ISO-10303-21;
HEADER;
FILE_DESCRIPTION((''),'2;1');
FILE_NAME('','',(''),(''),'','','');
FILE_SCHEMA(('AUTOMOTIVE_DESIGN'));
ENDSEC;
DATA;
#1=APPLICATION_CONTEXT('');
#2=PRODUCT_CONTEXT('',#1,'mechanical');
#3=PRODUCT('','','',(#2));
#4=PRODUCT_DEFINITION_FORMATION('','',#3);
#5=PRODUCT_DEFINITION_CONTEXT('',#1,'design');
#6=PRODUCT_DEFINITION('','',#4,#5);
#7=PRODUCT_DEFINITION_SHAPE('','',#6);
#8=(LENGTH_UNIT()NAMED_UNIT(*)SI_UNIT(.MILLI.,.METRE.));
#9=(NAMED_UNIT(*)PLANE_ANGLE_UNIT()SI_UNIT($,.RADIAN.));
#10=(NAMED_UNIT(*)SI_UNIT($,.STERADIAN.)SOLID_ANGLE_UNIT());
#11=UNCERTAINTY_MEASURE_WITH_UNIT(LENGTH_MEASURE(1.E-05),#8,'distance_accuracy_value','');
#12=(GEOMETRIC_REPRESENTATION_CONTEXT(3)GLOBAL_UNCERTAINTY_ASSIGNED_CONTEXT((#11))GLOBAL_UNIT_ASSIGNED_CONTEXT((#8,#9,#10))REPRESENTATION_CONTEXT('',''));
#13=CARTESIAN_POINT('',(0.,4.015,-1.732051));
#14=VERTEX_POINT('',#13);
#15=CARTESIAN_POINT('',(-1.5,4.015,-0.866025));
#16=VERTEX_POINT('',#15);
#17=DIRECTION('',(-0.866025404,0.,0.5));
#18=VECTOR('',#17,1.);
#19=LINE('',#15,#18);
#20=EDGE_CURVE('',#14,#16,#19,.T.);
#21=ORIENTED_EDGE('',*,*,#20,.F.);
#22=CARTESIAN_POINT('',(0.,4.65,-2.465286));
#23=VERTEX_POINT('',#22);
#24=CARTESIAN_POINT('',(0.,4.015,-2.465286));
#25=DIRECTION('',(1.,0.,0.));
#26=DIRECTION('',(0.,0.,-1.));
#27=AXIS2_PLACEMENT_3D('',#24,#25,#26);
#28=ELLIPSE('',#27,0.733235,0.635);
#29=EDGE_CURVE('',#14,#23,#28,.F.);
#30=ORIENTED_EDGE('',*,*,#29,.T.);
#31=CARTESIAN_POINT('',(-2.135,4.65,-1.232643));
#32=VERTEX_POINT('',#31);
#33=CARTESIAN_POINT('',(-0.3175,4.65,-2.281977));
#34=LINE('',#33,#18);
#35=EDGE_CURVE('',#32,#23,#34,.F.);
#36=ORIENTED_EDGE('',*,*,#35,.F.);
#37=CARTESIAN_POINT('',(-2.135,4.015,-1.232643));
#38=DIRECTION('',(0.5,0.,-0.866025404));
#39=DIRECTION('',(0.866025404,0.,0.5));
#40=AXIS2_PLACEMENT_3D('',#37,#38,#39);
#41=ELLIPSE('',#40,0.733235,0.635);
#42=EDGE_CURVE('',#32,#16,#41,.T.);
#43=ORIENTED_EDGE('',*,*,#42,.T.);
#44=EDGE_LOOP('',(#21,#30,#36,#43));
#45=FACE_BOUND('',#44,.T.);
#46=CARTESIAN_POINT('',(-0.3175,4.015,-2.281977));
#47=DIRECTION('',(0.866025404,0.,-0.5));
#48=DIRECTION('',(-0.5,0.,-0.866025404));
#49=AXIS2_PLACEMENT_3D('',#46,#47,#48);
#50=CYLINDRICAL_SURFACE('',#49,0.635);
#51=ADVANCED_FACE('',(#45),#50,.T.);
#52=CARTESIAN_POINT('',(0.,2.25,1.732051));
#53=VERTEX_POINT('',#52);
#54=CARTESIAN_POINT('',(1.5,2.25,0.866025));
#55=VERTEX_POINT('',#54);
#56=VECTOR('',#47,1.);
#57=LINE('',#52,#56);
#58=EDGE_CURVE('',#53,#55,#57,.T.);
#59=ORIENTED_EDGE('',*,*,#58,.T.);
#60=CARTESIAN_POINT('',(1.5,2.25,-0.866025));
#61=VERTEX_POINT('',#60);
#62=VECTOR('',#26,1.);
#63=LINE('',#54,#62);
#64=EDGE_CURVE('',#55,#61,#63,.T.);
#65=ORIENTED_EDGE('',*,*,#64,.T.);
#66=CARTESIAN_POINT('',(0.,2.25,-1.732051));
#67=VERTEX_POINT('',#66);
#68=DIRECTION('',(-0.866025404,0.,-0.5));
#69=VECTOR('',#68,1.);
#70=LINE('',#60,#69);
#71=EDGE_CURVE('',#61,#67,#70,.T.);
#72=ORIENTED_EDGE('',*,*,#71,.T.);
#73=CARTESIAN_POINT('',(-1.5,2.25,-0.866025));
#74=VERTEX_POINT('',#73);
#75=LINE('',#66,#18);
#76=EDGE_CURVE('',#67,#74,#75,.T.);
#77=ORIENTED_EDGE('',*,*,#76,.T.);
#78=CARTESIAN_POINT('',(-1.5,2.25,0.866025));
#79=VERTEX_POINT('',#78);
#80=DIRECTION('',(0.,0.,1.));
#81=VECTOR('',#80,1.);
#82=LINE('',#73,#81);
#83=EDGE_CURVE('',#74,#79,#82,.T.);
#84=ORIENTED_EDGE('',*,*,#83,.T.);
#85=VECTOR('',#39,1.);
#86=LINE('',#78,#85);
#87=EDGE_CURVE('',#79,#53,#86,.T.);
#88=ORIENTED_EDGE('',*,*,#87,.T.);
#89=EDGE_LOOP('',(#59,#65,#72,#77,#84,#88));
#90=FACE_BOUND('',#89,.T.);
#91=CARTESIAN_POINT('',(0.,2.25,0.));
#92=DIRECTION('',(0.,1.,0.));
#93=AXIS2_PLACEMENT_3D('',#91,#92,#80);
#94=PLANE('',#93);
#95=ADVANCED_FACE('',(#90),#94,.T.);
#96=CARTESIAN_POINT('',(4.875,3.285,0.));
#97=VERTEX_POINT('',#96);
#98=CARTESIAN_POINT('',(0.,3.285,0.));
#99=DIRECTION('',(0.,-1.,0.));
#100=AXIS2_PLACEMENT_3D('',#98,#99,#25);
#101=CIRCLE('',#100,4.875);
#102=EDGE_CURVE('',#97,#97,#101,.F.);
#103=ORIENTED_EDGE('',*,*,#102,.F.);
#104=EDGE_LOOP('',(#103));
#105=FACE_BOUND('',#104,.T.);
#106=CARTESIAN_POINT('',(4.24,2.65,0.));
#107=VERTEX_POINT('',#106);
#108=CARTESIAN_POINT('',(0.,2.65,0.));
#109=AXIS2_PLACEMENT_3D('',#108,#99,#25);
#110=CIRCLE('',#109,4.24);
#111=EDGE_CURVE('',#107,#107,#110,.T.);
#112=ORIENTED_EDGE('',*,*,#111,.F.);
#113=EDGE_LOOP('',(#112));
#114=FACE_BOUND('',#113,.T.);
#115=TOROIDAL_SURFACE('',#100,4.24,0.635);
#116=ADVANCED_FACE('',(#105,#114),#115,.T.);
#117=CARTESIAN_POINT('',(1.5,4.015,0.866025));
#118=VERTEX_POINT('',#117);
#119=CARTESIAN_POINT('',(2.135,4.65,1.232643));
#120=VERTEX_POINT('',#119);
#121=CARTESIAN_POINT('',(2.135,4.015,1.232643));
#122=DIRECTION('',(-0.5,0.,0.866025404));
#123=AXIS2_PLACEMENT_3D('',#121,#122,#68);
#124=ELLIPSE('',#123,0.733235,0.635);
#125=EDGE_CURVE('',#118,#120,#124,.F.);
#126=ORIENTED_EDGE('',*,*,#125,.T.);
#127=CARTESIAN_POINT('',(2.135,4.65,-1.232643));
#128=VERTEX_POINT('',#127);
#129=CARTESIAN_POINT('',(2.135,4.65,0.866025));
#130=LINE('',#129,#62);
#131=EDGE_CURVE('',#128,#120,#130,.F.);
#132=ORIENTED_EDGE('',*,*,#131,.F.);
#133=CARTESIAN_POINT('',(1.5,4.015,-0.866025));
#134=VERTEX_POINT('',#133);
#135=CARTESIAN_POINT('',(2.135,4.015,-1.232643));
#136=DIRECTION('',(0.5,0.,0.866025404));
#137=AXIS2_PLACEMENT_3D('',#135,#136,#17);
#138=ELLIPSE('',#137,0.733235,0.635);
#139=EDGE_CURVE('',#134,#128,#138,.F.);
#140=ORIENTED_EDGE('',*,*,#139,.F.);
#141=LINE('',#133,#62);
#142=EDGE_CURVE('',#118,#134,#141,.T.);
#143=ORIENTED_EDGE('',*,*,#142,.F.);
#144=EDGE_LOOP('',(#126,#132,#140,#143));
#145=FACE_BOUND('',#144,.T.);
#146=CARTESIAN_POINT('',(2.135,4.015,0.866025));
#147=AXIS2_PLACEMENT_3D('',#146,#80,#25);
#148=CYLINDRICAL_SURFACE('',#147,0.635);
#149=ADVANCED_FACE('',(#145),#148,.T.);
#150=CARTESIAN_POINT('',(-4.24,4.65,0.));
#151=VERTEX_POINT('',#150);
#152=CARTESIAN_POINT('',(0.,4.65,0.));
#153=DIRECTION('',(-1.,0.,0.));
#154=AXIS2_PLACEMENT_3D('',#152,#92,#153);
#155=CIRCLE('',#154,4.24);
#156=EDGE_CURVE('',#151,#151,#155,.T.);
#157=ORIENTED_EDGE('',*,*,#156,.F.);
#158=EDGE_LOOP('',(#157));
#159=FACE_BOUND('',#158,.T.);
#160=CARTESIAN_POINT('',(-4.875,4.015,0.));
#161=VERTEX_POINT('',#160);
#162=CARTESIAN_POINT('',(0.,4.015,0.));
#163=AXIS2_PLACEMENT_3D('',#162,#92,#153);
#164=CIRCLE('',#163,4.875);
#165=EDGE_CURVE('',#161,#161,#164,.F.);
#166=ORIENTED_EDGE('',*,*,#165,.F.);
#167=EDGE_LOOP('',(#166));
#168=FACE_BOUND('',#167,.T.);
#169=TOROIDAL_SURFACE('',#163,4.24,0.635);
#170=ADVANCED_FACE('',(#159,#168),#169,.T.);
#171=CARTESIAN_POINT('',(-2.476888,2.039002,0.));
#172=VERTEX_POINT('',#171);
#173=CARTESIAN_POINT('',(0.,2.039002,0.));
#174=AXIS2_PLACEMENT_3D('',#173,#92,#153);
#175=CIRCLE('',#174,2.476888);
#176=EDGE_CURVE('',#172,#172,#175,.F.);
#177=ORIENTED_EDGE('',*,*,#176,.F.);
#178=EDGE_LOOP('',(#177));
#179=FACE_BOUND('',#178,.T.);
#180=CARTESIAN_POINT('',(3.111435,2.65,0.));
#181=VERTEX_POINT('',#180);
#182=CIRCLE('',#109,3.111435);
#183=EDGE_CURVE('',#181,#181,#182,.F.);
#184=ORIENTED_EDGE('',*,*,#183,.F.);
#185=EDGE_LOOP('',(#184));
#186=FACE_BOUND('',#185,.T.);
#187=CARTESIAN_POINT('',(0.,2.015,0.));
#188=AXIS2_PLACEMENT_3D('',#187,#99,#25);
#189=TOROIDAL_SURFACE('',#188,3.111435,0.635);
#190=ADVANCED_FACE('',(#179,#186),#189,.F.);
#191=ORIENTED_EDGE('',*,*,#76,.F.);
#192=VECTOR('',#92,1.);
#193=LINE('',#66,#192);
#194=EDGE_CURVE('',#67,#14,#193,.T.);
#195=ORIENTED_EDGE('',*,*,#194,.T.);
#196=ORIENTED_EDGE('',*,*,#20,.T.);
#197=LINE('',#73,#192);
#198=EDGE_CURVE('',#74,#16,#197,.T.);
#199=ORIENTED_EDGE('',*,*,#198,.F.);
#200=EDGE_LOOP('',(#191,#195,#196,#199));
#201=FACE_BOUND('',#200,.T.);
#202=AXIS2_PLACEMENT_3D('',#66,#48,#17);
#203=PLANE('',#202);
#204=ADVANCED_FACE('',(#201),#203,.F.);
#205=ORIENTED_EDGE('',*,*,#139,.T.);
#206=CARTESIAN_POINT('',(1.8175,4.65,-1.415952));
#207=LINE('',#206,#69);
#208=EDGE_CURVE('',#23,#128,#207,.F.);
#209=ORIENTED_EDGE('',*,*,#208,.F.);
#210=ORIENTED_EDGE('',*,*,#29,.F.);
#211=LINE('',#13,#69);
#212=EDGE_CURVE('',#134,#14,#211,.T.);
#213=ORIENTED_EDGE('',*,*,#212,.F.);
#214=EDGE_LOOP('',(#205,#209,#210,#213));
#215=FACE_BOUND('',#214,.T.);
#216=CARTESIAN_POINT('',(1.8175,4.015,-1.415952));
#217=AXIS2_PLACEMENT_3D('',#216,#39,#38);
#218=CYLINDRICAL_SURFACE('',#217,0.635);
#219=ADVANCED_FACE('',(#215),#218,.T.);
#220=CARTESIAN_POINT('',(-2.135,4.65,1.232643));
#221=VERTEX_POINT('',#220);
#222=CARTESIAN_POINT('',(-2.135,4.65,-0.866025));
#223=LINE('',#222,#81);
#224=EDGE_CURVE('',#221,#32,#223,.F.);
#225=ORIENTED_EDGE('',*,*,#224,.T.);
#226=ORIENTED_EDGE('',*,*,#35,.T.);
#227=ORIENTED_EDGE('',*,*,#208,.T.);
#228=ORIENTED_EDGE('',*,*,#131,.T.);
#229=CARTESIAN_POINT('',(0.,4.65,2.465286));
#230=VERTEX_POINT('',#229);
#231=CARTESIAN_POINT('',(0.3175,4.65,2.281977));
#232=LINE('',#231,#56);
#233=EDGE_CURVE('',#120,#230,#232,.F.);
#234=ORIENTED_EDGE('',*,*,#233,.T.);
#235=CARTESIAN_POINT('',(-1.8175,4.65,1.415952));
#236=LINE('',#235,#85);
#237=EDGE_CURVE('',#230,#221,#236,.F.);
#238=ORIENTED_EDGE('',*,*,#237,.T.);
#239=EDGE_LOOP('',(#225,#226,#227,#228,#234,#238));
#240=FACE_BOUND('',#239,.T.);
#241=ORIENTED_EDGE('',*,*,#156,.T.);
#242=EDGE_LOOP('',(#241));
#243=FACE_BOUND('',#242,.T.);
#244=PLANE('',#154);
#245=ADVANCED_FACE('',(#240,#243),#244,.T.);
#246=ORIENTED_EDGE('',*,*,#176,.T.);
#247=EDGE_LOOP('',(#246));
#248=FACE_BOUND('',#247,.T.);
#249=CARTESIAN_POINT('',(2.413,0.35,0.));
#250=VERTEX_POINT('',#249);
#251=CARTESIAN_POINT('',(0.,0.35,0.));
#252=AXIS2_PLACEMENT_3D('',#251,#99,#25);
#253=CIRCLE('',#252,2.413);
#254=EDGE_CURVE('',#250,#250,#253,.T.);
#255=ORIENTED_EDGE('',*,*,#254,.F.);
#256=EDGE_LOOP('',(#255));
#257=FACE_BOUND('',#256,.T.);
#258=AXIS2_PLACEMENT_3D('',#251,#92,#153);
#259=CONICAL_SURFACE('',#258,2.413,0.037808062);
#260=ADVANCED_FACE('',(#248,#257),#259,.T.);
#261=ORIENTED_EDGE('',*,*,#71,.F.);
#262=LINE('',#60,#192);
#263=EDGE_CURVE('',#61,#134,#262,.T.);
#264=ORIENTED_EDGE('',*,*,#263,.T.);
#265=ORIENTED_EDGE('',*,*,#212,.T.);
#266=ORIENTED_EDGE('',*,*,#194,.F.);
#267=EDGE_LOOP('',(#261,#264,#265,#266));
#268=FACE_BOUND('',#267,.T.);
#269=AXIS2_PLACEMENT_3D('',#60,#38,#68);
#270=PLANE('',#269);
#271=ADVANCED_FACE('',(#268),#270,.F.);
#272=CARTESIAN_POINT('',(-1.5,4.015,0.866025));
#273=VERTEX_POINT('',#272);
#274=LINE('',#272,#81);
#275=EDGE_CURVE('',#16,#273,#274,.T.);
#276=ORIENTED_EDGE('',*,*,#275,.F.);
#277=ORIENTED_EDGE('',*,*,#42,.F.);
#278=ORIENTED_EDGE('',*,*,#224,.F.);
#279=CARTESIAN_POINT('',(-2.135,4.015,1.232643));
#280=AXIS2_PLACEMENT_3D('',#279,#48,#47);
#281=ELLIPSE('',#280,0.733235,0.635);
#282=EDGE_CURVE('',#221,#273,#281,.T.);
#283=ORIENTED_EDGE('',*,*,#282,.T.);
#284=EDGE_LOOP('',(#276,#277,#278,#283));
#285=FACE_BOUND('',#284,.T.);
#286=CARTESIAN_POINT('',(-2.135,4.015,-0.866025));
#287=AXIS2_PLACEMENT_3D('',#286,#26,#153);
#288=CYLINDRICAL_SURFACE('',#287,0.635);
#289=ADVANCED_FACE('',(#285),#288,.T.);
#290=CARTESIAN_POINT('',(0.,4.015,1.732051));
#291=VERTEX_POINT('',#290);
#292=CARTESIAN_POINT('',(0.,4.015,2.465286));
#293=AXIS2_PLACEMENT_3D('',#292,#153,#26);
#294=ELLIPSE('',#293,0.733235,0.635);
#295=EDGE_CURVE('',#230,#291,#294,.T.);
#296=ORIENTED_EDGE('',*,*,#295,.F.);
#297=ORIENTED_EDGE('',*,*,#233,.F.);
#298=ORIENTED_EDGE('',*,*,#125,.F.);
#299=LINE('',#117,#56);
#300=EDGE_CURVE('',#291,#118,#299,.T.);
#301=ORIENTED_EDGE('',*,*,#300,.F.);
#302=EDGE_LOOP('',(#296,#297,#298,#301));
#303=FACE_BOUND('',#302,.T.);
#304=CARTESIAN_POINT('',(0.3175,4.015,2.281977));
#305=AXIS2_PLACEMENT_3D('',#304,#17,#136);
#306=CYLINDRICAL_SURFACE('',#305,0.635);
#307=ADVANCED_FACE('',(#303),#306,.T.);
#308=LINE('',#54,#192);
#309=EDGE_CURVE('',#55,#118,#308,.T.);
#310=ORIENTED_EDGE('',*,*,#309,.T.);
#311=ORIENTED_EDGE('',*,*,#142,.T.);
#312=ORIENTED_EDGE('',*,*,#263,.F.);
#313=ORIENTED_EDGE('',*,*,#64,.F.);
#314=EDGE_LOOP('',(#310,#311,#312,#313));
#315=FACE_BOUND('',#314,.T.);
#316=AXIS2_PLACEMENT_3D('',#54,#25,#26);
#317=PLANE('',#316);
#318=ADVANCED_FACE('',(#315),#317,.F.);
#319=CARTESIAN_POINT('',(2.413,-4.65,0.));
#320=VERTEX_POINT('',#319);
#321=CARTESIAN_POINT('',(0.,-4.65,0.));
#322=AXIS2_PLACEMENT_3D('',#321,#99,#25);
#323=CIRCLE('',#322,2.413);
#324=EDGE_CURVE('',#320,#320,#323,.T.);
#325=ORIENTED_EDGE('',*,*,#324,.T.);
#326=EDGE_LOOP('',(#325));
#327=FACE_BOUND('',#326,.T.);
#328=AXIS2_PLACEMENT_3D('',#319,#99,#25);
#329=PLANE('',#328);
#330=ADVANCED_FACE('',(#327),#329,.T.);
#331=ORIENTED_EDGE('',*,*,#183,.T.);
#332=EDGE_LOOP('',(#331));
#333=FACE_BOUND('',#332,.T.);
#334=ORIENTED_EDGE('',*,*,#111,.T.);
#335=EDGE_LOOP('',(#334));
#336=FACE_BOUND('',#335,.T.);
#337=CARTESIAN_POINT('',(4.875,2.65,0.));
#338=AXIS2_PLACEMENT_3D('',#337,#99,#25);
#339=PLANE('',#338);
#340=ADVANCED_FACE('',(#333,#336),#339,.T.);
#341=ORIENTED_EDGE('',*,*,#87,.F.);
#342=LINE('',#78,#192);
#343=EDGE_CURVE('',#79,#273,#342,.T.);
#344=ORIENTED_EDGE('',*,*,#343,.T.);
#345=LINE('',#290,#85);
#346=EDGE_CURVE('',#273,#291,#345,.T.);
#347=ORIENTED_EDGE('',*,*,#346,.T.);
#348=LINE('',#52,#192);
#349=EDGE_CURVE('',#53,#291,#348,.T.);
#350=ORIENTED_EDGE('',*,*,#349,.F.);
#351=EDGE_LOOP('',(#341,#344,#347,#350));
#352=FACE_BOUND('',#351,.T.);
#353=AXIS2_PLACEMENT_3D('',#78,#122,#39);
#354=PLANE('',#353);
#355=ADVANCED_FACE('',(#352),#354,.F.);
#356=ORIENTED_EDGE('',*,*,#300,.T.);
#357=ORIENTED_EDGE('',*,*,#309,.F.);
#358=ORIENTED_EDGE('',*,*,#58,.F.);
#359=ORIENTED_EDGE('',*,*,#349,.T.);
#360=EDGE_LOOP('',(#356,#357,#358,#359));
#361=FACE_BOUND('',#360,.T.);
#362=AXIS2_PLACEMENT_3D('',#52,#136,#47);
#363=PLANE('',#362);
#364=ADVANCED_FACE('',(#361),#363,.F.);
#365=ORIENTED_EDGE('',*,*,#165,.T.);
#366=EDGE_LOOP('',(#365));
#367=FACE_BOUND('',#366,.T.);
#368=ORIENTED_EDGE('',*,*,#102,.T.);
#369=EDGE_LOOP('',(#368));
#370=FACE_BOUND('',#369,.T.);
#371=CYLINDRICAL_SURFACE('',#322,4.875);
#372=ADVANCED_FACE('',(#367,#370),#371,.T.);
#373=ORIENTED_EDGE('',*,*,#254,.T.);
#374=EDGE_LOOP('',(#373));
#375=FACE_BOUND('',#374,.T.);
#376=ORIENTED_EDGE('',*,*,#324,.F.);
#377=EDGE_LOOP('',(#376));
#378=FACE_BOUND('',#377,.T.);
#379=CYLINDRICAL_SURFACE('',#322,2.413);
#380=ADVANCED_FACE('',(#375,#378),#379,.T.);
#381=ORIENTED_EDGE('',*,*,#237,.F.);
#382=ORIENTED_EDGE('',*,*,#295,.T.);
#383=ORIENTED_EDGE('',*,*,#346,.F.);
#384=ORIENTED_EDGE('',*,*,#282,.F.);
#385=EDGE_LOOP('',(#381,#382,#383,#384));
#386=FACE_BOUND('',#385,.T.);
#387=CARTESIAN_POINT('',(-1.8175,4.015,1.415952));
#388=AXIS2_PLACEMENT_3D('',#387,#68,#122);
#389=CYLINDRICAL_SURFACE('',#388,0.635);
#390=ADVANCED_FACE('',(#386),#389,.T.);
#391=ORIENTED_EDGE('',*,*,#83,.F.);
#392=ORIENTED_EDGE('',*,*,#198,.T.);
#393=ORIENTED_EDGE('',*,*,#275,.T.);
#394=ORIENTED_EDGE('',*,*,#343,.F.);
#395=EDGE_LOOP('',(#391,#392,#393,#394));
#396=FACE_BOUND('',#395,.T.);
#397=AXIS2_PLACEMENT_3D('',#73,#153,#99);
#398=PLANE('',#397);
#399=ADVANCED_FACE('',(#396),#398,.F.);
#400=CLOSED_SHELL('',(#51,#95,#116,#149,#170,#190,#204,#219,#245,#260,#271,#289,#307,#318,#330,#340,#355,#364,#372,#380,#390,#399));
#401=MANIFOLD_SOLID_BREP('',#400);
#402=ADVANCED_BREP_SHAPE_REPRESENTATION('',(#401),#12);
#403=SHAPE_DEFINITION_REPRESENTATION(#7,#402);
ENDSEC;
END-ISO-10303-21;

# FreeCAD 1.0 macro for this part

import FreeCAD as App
import Part
import Sketcher
Q = App.Units.Quantity


def edges_at(feature, points):
    """Names of the edges that pass closest to the given points."""
    edges = feature.Shape.Edges
    near = lambda p: min(range(len(edges)), key=lambda i: edges[i].distToShape(Part.Vertex(*p))[0])
    return sorted({f"Edge{near(p) + 1}" for p in points})

doc = App.newDocument("Part")
params = doc.addObject("Spreadsheet::Sheet", "Params")
for row, (alias, value) in enumerate([
    ("sketch1_height", "5 mm"),
    ("sketch1_height2", "2 mm"),
    ("sketch1_height3", "9.3 mm"),
    ("revolution_angle", "360 deg"),
    ("fillet_radius", "0.635 mm"),
    ("pocket1_length", "2.4 mm"),
    ("fillet2_radius", "0.635 mm"),
], start=1):
    params.set(f"A{row}", alias)
    params.set(f"B{row}", "=" + value)
    params.setAlias(f"B{row}", alias)

body = doc.addObject("PartDesign::Body", "Body")

# Sketch on XY plane
sketch1 = doc.addObject("Sketcher::SketchObject", "Sketch")
body.addObject(sketch1)
sketch1.AttachmentSupport = (doc.XY_Plane, [""])
sketch1.MapMode = "FlatFace"
sketch1.addGeometry([
    Part.LineSegment(App.Vector(4.9, 4.7, 0), App.Vector(0, 4.7, 0)),  # 0
    Part.LineSegment(App.Vector(0, 4.7, 0), App.Vector(0, -4.7, 0)),  # 1
    Part.LineSegment(App.Vector(0, -4.7, 0), App.Vector(2.4, -4.7, 0)),  # 2
    Part.LineSegment(App.Vector(2.4, -4.7, 0), App.Vector(2.4, 0.3, 0)),  # 3
    Part.LineSegment(App.Vector(2.4, 0.3, 0), App.Vector(2.5, 2.6, 0)),  # 4
    Part.LineSegment(App.Vector(2.5, 2.6, 0), App.Vector(4.9, 2.6, 0)),  # 5
    Part.LineSegment(App.Vector(4.9, 2.6, 0), App.Vector(4.9, 4.7, 0)),  # 6
], False)
sketch1.addConstraint([
    Sketcher.Constraint("Coincident", 0, 2, 1, 1),
    Sketcher.Constraint("Coincident", 1, 2, 2, 1),
    Sketcher.Constraint("Coincident", 2, 2, 3, 1),
    Sketcher.Constraint("Coincident", 3, 2, 4, 1),
    Sketcher.Constraint("Coincident", 4, 2, 5, 1),
    Sketcher.Constraint("Coincident", 5, 2, 6, 1),
    Sketcher.Constraint("Coincident", 6, 2, 0, 1),
    Sketcher.Constraint("Horizontal", 0),
    Sketcher.Constraint("Vertical", 1),
    Sketcher.Constraint("Horizontal", 2),
    Sketcher.Constraint("Vertical", 3),
    Sketcher.Constraint("Horizontal", 5),
    Sketcher.Constraint("Vertical", 6),
    Sketcher.Constraint("Symmetric", 0, 2, 1, 2, -1, 1),
    Sketcher.Constraint("DistanceY", 3, 1, 3, 2, 5.0),
    Sketcher.Constraint("DistanceY", 6, 1, 6, 2, 2.0),
    Sketcher.Constraint("DistanceY", 1, 2, 1, 1, 9.3),
    Sketcher.Constraint("DistanceX", -1, 1, 4, 2, 2.5),
    Sketcher.Constraint("DistanceX", 0, 2, 0, 1, 4.875),
    Sketcher.Constraint("DistanceX", 2, 1, 2, 2, 2.413),
])
sketch1.setExpression("Constraints[14]", "Params.sketch1_height")
sketch1.setExpression("Constraints[15]", "Params.sketch1_height2")
sketch1.setExpression("Constraints[16]", "Params.sketch1_height3")
revolution = doc.addObject("PartDesign::Revolution", "Revolution")
body.addObject(revolution)
revolution.Profile = sketch1
revolution.ReferenceAxis = (sketch1, ["V_Axis"])
revolution.setExpression("Angle", "Params.revolution_angle")
doc.recompute()

fillet = doc.addObject("PartDesign::Fillet", "Fillet")
body.addObject(fillet)
fillet.Base = (revolution, edges_at(revolution, [(-2.5, 2.65, 0), (-4.875, 2.65, 0), (-4.875, 4.65, 0)]))
fillet.setExpression("Radius", "Params.fillet_radius")

# Sketch on XZ plane
sketch2 = doc.addObject("Sketcher::SketchObject", "Sketch001")
body.addObject(sketch2)
sketch2.AttachmentSupport = (doc.XZ_Plane, [""])
sketch2.MapMode = "FlatFace"
sketch2.AttachmentOffset = App.Placement(App.Vector(0, 0, -4.65), App.Rotation())
sketch2.addGeometry([
    Part.LineSegment(App.Vector(0, -1.7, 0), App.Vector(-1.5, -0.9, 0)),  # 0
    Part.LineSegment(App.Vector(-1.5, -0.9, 0), App.Vector(-1.5, 0.9, 0)),  # 1
    Part.LineSegment(App.Vector(-1.5, 0.9, 0), App.Vector(0, 1.7, 0)),  # 2
    Part.LineSegment(App.Vector(0, 1.7, 0), App.Vector(1.5, 0.9, 0)),  # 3
    Part.LineSegment(App.Vector(1.5, 0.9, 0), App.Vector(1.5, -0.9, 0)),  # 4
    Part.LineSegment(App.Vector(1.5, -0.9, 0), App.Vector(0, -1.7, 0)),  # 5
], False)
sketch2.addConstraint([
    Sketcher.Constraint("Coincident", 0, 2, 1, 1),
    Sketcher.Constraint("Coincident", 1, 2, 2, 1),
    Sketcher.Constraint("Coincident", 2, 2, 3, 1),
    Sketcher.Constraint("Coincident", 3, 2, 4, 1),
    Sketcher.Constraint("Coincident", 4, 2, 5, 1),
    Sketcher.Constraint("Coincident", 5, 2, 0, 1),
    Sketcher.Constraint("Vertical", 1),
    Sketcher.Constraint("Vertical", 4),
    Sketcher.Constraint("Symmetric", 0, 2, 3, 2, -1, 1),
    Sketcher.Constraint("Symmetric", 2, 2, 5, 2, -1, 1),
    Sketcher.Constraint("PointOnObject", 2, 2, -2),
    Sketcher.Constraint("Parallel", 2, 5),
    Sketcher.Constraint("Horizontal", 1, 2, 3, 2),
    Sketcher.Constraint("Angle", 0, Q("150 deg")),
    Sketcher.Constraint("DistanceX", 1, 2, 3, 2, 3.0),
    Sketcher.Constraint("DistanceY", 1, 1, 1, 2, 1.732051),
])
pocket1 = doc.addObject("PartDesign::Pocket", "Pocket")
body.addObject(pocket1)
pocket1.Profile = sketch2
pocket1.setExpression("Length", "Params.pocket1_length")
pocket1.Reversed = True
doc.recompute()

fillet2 = doc.addObject("PartDesign::Fillet", "Fillet001")
body.addObject(fillet2)
fillet2.Base = (pocket1, edges_at(pocket1, [
    (0.75, 4.65, -1.299),
    (-0.75, 4.65, -1.299),
    (-1.5, 4.65, 0),
    (-0.75, 4.65, 1.299),
    (0.75, 4.65, 1.299),
    (1.5, 4.65, 0),
]))
fillet2.setExpression("Radius", "Params.fillet2_radius")

doc.recompute()
